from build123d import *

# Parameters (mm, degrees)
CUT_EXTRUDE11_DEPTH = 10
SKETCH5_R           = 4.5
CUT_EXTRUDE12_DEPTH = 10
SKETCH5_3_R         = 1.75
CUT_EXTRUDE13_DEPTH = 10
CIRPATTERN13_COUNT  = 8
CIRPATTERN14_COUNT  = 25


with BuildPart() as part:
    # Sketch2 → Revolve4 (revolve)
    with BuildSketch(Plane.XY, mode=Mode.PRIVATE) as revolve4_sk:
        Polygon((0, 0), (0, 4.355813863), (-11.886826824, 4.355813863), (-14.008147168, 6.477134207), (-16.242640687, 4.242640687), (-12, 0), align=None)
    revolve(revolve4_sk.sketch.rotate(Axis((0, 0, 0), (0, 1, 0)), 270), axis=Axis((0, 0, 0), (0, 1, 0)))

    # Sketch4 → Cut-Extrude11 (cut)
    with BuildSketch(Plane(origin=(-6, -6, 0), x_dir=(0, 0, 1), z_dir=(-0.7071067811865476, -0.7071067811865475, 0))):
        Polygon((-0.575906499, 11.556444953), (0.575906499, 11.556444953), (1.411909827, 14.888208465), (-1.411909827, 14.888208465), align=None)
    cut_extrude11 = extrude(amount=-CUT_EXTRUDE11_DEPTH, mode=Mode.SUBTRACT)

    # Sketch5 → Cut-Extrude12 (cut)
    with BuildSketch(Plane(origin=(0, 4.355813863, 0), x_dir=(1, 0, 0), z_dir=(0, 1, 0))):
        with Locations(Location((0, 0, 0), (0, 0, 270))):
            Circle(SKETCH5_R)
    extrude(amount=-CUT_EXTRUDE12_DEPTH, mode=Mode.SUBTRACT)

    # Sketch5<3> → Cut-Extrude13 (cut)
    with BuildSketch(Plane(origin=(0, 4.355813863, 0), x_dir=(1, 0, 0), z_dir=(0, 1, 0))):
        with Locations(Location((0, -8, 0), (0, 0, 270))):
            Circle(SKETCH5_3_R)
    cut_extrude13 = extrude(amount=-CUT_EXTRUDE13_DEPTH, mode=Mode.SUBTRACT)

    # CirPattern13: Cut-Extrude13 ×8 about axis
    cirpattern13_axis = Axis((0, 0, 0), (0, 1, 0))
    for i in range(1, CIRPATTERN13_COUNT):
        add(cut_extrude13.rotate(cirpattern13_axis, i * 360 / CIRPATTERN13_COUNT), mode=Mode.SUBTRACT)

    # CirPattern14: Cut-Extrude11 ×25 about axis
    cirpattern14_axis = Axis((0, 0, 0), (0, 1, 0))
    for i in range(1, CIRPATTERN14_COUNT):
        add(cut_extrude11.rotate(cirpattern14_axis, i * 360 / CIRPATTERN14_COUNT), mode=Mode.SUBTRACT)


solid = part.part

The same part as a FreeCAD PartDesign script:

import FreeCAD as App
import Part
import Sketcher
Q = App.Units.Quantity

doc = App.newDocument("Part")
params = doc.addObject("Spreadsheet::Sheet", "Params")
for row, (alias, value) in enumerate([
    ("sketch1_width", "12 mm"),
    ("sketch1_length", "3 mm"),
    ("sketch1_length2", "6 mm"),
    ("revolution_angle", "360 deg"),
    ("pocket1_length", "10 mm"),
    ("sketch3_diameter", "9 mm"),
    ("pocket2_length", "10 mm"),
    ("sketch4_diameter", "3.5 mm"),
    ("pocket3_length", "10 mm"),
], start=1):
    params.set(f"A{row}", alias)
    params.set(f"B{row}", "=" + value)
    params.setAlias(f"B{row}", alias)

body = doc.addObject("PartDesign::Body", "Body")

# Sketch on XY plane
sketch1 = body.newObject("Sketcher::SketchObject", "Sketch")
sketch1.AttachmentSupport = (doc.getObject("XY_Plane"), [""])
sketch1.MapMode = "FlatFace"
sketch1.addGeometry([
    Part.LineSegment(App.Vector(0, 0, 0), App.Vector(0, 4.355814, 0)),  # 0
    Part.LineSegment(App.Vector(0, 4.355814, 0), App.Vector(-11.886827, 4.355814, 0)),  # 1
    Part.LineSegment(App.Vector(-11.886827, 4.355814, 0), App.Vector(-14.008147, 6.477134, 0)),  # 2
    Part.LineSegment(App.Vector(-14.008147, 6.477134, 0), App.Vector(-16.242641, 4.242641, 0)),  # 3
    Part.LineSegment(App.Vector(-16.242641, 4.242641, 0), App.Vector(-12, 0, 0)),  # 4
    Part.LineSegment(App.Vector(-12, 0, 0), App.Vector(0, 0, 0)),  # 5
], False)
sketch1.addConstraint([
    Sketcher.Constraint("Coincident", 0, 2, 1, 1),
    Sketcher.Constraint("Coincident", 1, 2, 2, 1),
    Sketcher.Constraint("Coincident", 2, 2, 3, 1),
    Sketcher.Constraint("Coincident", 3, 2, 4, 1),
    Sketcher.Constraint("Coincident", 4, 2, 5, 1),
    Sketcher.Constraint("Coincident", 5, 2, 0, 1),
    Sketcher.Constraint("Vertical", 0),
    Sketcher.Constraint("Horizontal", 1),
    Sketcher.Constraint("Horizontal", 5),
    Sketcher.Constraint("Coincident", 5, 2, -1, 1),
    Sketcher.Constraint("Perpendicular", 2, 3),
    Sketcher.Constraint("Perpendicular", 3, 4),
    Sketcher.Constraint("DistanceX", 5, 1, 5, 2, 12.0),
    Sketcher.Constraint("Angle", 2, Q("135 deg")),
    Sketcher.Constraint("Distance", 2, 3.0),
    Sketcher.Constraint("Distance", 4, 6.0),
    Sketcher.Constraint("Distance", 3, 3.160051),
])
sketch1.setExpression("Constraints[12]", "Params.sketch1_width")
sketch1.setExpression("Constraints[14]", "Params.sketch1_length")
sketch1.setExpression("Constraints[15]", "Params.sketch1_length2")
revolution = body.newObject("PartDesign::Revolution", "Revolution")
revolution.Profile = sketch1
revolution.ReferenceAxis = (sketch1, ["V_Axis"])
revolution.setExpression("Angle", "Params.revolution_angle")

# Sketch on an angled plane
sketch2 = body.newObject("Sketcher::SketchObject", "Sketch001")
sketch2.Placement = App.Placement(App.Vector(-6, -6, 0), App.Rotation(App.Vector(0, 0, 1), App.Vector(-0.707106781, 0.707106781, 0), App.Vector(-0.707106781, -0.707106781, 0), "ZXY"))
sketch2.addGeometry([
    Part.LineSegment(App.Vector(-0.575906, 11.556445, 0), App.Vector(0.575906, 11.556445, 0)),
    Part.LineSegment(App.Vector(0.575906, 11.556445, 0), App.Vector(1.41191, 14.888208, 0)),
    Part.LineSegment(App.Vector(1.41191, 14.888208, 0), App.Vector(-1.41191, 14.888208, 0)),
    Part.LineSegment(App.Vector(-1.41191, 14.888208, 0), App.Vector(-0.575906, 11.556445, 0)),
], False)
sketch2.addConstraint([
    Sketcher.Constraint("Coincident", 0, 2, 1, 1),
    Sketcher.Constraint("Coincident", 1, 2, 2, 1),
    Sketcher.Constraint("Coincident", 2, 2, 3, 1),
    Sketcher.Constraint("Coincident", 3, 2, 0, 1),
    Sketcher.Constraint("Horizontal", 0),
    Sketcher.Constraint("Horizontal", 2),
    Sketcher.Constraint("Equal", 1, 3),
    Sketcher.Constraint("DistanceX", 2, 2, 2, 1, 2.82382),
    Sketcher.Constraint("DistanceX", 0, 1, 0, 2, 1.151813),
    Sketcher.Constraint("DistanceX", -1, 1, 1, 2, 1.41191),
    Sketcher.Constraint("DistanceY", -1, 1, 1, 2, 14.888208),
    Sketcher.Constraint("Distance", 1, 3.435047),
])
pocket1 = body.newObject("PartDesign::Pocket", "Pocket")
pocket1.Profile = sketch2
pocket1.setExpression("Length", "Params.pocket1_length")

# Sketch on XZ plane
sketch3 = body.newObject("Sketcher::SketchObject", "Sketch002")
sketch3.AttachmentSupport = (doc.getObject("XZ_Plane"), [""])
sketch3.MapMode = "FlatFace"
sketch3.AttachmentOffset = App.Placement(App.Vector(0, 0, -4.355814), App.Rotation())
sketch3.addGeometry(Part.Circle(App.Vector(0, 0, 0), App.Vector(0, 0, 1), 4.5), False)
sketch3.addConstraint([
    Sketcher.Constraint("Coincident", 0, 3, -1, 1),
    Sketcher.Constraint("Diameter", 0, 9.0),
])
sketch3.setExpression("Constraints[1]", "Params.sketch3_diameter")
pocket2 = body.newObject("PartDesign::Pocket", "Pocket001")
pocket2.Profile = sketch3
pocket2.setExpression("Length", "Params.pocket2_length")
pocket2.Reversed = True

# Sketch on XZ plane
sketch4 = body.newObject("Sketcher::SketchObject", "Sketch003")
sketch4.AttachmentSupport = (doc.getObject("XZ_Plane"), [""])
sketch4.MapMode = "FlatFace"
sketch4.AttachmentOffset = App.Placement(App.Vector(0, 0, -4.355814), App.Rotation())
sketch4.addGeometry(Part.Circle(App.Vector(0, 8, 0), App.Vector(0, 0, 1), 1.75), False)
sketch4.addConstraint([
    Sketcher.Constraint("PointOnObject", 0, 3, -2),
    Sketcher.Constraint("Diameter", 0, 3.5),
    Sketcher.Constraint("DistanceY", -1, 1, 0, 3, 8.0),
])
sketch4.setExpression("Constraints[1]", "Params.sketch4_diameter")
pocket3 = body.newObject("PartDesign::Pocket", "Pocket002")
pocket3.Profile = sketch4
pocket3.setExpression("Length", "Params.pocket3_length")
pocket3.Reversed = True
doc.recompute()

polarpattern = body.newObject("PartDesign::PolarPattern", "PolarPattern")
polarpattern.Originals = [pocket3]
polarpattern.Axis = (doc.getObject("Y_Axis"), [""])
polarpattern.Angle = 360
polarpattern.Occurrences = 8
body.Tip = polarpattern
doc.recompute()

polarpattern2 = body.newObject("PartDesign::PolarPattern", "PolarPattern001")
polarpattern2.Originals = [pocket1]
polarpattern2.Axis = (doc.getObject("Y_Axis"), [""])
polarpattern2.Angle = 360
polarpattern2.Occurrences = 25
body.Tip = polarpattern2

doc.recompute()
